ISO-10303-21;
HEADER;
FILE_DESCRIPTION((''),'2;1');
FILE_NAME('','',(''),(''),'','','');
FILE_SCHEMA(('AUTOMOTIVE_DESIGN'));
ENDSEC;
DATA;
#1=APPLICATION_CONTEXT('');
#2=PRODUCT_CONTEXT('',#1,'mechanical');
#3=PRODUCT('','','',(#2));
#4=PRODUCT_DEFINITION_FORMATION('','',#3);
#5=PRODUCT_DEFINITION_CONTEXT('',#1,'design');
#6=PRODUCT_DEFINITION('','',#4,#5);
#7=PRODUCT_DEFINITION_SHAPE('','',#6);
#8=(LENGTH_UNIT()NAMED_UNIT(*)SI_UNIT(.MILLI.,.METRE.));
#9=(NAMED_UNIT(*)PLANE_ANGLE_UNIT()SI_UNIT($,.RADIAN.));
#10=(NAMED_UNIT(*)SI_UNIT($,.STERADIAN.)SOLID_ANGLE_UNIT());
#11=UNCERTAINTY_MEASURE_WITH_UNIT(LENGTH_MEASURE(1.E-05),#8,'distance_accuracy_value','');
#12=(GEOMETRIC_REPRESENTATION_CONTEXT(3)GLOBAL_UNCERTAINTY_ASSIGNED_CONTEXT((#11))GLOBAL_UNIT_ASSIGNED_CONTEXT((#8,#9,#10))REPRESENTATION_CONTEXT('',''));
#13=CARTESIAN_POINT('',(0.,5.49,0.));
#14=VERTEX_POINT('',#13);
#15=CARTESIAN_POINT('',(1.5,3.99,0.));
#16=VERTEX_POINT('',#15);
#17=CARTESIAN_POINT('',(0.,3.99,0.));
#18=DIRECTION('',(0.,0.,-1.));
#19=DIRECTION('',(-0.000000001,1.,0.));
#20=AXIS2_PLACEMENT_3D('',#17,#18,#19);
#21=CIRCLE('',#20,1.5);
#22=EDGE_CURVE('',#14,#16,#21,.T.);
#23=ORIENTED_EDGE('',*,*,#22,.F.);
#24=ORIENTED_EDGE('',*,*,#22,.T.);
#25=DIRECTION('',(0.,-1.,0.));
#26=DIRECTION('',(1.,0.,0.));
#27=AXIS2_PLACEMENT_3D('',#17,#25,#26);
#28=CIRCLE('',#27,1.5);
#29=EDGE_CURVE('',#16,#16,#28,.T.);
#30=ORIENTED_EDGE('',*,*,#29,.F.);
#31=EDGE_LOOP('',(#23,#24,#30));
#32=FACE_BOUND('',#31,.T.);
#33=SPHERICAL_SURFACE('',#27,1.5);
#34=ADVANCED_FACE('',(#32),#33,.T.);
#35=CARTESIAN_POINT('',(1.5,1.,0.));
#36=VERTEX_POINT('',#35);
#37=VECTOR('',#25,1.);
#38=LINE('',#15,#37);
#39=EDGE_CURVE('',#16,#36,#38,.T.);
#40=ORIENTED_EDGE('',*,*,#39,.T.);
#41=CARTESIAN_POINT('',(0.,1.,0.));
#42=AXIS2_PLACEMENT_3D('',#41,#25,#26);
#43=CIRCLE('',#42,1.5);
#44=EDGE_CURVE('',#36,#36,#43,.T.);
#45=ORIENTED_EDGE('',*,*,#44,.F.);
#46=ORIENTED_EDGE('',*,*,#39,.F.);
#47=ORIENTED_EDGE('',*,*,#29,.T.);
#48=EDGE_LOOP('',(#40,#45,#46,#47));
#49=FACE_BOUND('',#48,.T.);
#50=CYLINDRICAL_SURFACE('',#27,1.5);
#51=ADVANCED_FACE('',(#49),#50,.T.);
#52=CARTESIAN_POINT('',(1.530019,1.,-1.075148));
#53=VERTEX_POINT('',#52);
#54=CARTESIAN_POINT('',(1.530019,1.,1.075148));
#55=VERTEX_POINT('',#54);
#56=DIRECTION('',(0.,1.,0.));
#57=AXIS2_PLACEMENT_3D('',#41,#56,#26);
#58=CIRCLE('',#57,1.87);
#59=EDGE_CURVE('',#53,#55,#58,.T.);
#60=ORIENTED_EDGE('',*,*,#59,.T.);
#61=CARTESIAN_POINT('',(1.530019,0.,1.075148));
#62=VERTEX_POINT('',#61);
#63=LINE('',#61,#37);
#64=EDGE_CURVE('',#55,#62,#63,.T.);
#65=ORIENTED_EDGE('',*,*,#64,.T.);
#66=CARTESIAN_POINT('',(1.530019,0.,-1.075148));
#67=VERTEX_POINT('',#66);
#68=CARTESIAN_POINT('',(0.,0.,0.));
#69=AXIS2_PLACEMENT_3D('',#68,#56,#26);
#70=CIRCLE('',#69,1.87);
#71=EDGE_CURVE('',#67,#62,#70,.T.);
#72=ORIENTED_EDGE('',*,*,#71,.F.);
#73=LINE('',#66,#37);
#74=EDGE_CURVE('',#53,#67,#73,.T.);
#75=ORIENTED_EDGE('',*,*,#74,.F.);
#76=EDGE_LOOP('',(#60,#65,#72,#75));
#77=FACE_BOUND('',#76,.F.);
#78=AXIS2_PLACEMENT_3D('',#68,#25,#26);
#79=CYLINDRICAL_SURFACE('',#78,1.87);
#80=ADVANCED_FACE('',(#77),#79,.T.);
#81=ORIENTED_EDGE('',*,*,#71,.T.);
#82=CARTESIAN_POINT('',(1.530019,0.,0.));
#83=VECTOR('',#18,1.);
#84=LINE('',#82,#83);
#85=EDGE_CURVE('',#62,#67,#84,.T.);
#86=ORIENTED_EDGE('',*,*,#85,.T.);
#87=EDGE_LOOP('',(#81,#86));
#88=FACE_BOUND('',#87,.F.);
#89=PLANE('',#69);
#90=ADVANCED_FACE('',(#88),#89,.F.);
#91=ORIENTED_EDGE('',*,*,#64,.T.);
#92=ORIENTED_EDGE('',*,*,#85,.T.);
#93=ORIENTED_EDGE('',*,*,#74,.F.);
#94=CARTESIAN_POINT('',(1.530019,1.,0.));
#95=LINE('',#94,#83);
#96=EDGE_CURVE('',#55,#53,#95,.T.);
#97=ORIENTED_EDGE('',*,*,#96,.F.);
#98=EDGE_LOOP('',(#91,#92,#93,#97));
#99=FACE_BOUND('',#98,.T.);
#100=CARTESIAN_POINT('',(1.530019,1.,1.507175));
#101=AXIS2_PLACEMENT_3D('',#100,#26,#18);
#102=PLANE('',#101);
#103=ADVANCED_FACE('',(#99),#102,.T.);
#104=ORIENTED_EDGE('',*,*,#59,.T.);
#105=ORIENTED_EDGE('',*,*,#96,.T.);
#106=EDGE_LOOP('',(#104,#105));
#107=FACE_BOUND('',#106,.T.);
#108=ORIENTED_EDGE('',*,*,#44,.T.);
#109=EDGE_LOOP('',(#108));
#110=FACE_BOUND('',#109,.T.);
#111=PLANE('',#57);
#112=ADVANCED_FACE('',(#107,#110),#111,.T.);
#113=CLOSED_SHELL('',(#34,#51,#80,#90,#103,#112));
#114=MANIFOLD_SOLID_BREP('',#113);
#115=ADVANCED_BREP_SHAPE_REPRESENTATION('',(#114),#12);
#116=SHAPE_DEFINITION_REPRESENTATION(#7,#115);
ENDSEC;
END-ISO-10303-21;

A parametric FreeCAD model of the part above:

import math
import FreeCAD as App
import Part
import Sketcher
from FreeCAD import Vector


def add_polygon(sketch, points):
    """Adds a closed chain of lines whose ends are joined by coincident constraints."""
    first, n = sketch.GeometryCount, len(points)
    for a, b in zip(points, points[1:] + points[:1]):
        sketch.addGeometry(Part.LineSegment(App.Vector(*a, 0), App.Vector(*b, 0)), False)
    for i in range(n):
        sketch.addConstraint(Sketcher.Constraint("Coincident", first + i, 2, first + (i + 1) % n, 1))

doc = App.newDocument("Part")
params = doc.addObject("Spreadsheet::Sheet", "Params")
for row, (alias, value) in enumerate([
    ("sketch1_diameter", "3.74 mm"),
    ("pad1_length", "1 mm"),
    ("sketch2_radius", "1.5 mm"),
    ("sketch2_height", "2.99 mm"),
    ("revolution_angle", "360 deg"),
    ("pocket1_length", "1 mm"),
], start=1):
    params.set(f"A{row}", alias)
    params.set(f"B{row}", "=" + value)
    params.setAlias(f"B{row}", alias)

body = doc.addObject("PartDesign::Body", "Body")

# Sketch on XZ plane
sketch1 = doc.addObject("Sketcher::SketchObject", "Sketch")
body.addObject(sketch1)
sketch1.AttachmentSupport = (doc.XZ_Plane, [""])
sketch1.MapMode = "FlatFace"
sketch1.addGeometry(Part.Circle(Vector(0, 0, 0), Vector(0, 0, 1), 1.87), False)
sketch1.addConstraint([
    Sketcher.Constraint("Coincident", 0, 3, -1, 1),
    Sketcher.Constraint("Diameter", 0, 3.74),
])
sketch1.setExpression("Constraints[1]", "Params.sketch1_diameter")
pad1 = doc.addObject("PartDesign::Pad", "Pad")
body.addObject(pad1)
pad1.Profile = sketch1
pad1.setExpression("Length", "Params.pad1_length")
pad1.Reversed = True

# Sketch on XY plane
sketch2 = doc.addObject("Sketcher::SketchObject", "Sketch001")
body.addObject(sketch2)
sketch2.AttachmentSupport = (doc.XY_Plane, [""])
sketch2.MapMode = "FlatFace"
sketch2.addGeometry([
    Part.LineSegment(Vector(1.5, 1, 0), Vector(1.5, 3.99, 0)),
    Part.ArcOfCircle(Part.Circle(Vector(0, 3.99, 0), Vector(0, 0, 1), 1.5), math.radians(0), math.radians(90)),
    Part.LineSegment(Vector(0, 5.49, 0), Vector(0, 1, 0)),
    Part.LineSegment(Vector(0, 1, 0), Vector(1.5, 1, 0)),
], False)
sketch2.addConstraint([
    Sketcher.Constraint("Tangent", 0, 2, 1, 1),
    Sketcher.Constraint("Coincident", 1, 2, 2, 1),
    Sketcher.Constraint("Coincident", 2, 2, 3, 1),
    Sketcher.Constraint("Coincident", 3, 2, 0, 1),
    Sketcher.Constraint("Vertical", 0),
    Sketcher.Constraint("Vertical", 2),
    Sketcher.Constraint("Horizontal", 3),
    Sketcher.Constraint("PointOnObject", 1, 3, -2),
    Sketcher.Constraint("PointOnObject", 1, 2, -2),
    Sketcher.Constraint("Radius", 1, 1.5),
    Sketcher.Constraint("DistanceY", -1, 1, 2, 2, 1.0),
    Sketcher.Constraint("DistanceY", 0, 1, 0, 2, 2.99),
])
sketch2.setExpression("Constraints[9]", "Params.sketch2_radius")
sketch2.setExpression("Constraints[11]", "Params.sketch2_height")
revolution = doc.addObject("PartDesign::Revolution", "Revolution")
body.addObject(revolution)
revolution.Profile = sketch2
revolution.ReferenceAxis = (sketch2, ["V_Axis"])
revolution.setExpression("Angle", "Params.revolution_angle")

# Sketch on XZ plane
sketch3 = doc.addObject("Sketcher::SketchObject", "Sketch002")
body.addObject(sketch3)
sketch3.AttachmentSupport = (doc.XZ_Plane, [""])
sketch3.MapMode = "FlatFace"
sketch3.AttachmentOffset = App.Placement(Vector(0, 0, -1), App.Rotation())
add_polygon(sketch3, [(1.530019, -1.507175), (1.530019, 1.507175), (2.209981, 1.507175), (2.209981, -1.507175)])  # lines 0-3
sketch3.addConstraint([
    Sketcher.Constraint("Vertical", 0),
    Sketcher.Constraint("Horizontal", 1),
    Sketcher.Constraint("Vertical", 2),
    Sketcher.Constraint("Horizontal", 3),
    Sketcher.Constraint("DistanceY", 0, 1, 0, 2, 3.01435),
    Sketcher.Constraint("DistanceX", 1, 1, 1, 2, 0.679963),
    Sketcher.Constraint("DistanceX", -1, 1, 0, 2, 1.530019),
    Sketcher.Constraint("DistanceY", -1, 1, 0, 2, 1.507175),
])
pocket1 = doc.addObject("PartDesign::Pocket", "Pocket")
body.addObject(pocket1)
pocket1.Profile = sketch3
pocket1.setExpression("Length", "Params.pocket1_length")
pocket1.Reversed = True

doc.recompute()
